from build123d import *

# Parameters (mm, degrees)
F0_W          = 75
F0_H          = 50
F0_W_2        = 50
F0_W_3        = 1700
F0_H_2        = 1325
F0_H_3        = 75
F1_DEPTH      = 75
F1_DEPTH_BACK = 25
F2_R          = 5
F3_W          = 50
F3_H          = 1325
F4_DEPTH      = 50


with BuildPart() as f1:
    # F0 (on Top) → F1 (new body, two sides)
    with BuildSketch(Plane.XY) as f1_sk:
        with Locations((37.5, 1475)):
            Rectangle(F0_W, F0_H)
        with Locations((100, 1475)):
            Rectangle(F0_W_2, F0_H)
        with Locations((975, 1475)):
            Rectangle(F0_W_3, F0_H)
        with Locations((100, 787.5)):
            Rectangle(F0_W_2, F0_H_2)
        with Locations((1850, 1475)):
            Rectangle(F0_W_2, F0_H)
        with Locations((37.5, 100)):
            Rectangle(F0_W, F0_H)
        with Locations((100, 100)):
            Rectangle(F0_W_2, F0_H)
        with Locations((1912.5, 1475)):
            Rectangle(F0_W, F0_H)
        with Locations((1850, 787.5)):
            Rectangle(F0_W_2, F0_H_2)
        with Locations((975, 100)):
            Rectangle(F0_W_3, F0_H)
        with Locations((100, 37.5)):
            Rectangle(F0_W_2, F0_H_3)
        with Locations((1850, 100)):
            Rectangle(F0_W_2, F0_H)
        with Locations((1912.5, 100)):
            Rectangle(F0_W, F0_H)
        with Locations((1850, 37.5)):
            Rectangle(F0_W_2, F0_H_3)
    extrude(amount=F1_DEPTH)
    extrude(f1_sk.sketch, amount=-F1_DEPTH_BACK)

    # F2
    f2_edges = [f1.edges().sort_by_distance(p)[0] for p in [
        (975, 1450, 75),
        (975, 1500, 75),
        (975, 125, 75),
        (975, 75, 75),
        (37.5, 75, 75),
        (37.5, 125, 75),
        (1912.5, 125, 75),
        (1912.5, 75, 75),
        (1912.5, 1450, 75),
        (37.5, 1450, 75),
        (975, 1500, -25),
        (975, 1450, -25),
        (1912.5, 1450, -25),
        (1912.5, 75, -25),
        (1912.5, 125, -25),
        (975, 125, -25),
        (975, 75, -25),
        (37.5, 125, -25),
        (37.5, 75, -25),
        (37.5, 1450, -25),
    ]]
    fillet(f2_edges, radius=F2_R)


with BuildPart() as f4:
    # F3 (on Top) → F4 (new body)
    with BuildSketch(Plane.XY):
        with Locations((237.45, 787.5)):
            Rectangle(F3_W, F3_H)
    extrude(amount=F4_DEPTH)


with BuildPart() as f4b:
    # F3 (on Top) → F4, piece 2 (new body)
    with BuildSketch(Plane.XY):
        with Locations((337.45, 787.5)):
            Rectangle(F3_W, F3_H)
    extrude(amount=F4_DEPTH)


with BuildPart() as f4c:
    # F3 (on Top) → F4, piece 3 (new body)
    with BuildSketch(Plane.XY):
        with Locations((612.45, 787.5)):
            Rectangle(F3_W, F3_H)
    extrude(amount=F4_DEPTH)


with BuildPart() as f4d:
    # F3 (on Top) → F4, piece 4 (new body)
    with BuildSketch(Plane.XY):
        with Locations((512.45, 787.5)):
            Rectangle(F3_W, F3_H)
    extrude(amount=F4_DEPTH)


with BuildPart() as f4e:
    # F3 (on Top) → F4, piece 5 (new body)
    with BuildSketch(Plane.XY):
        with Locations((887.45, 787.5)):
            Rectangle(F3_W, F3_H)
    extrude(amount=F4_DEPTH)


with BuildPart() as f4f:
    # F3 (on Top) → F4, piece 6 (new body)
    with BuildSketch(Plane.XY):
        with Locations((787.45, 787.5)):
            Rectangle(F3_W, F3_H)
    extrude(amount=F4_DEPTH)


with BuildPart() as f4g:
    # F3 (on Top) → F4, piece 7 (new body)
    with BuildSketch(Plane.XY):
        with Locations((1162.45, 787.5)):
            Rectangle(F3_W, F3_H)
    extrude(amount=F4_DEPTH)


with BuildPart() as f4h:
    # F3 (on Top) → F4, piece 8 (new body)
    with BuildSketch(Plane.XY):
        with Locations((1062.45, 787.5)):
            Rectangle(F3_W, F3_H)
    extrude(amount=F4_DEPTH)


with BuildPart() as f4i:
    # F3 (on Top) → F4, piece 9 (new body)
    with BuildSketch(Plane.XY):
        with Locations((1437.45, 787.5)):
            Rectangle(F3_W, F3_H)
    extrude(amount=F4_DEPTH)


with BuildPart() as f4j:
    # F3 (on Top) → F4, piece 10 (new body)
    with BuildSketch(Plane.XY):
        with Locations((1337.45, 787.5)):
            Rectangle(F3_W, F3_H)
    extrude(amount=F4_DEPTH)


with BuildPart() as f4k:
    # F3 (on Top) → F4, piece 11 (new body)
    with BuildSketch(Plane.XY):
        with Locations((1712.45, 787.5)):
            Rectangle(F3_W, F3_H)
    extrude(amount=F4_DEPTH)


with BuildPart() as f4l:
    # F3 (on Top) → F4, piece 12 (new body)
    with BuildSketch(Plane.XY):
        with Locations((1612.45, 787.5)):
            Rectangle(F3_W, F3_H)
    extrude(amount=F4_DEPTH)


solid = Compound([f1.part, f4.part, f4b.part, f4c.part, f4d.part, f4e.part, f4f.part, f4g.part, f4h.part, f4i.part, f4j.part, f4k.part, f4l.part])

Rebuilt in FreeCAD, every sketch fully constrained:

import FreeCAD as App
import Part
import Sketcher
Q = App.Units.Quantity


def edges_at(feature, points):
    """Names of the edges that pass closest to the given points."""
    edges = feature.Shape.Edges
    near = lambda p: min(range(len(edges)), key=lambda i: edges[i].distToShape(Part.Vertex(*p))[0])
    return sorted({f"Edge{near(p) + 1}" for p in points})


def add_polygon(sketch, points):
    """Adds a closed chain of lines whose ends are joined by coincident constraints."""
    first, n = sketch.GeometryCount, len(points)
    for a, b in zip(points, points[1:] + points[:1]):
        sketch.addGeometry(Part.LineSegment(App.Vector(*a, 0), App.Vector(*b, 0)), False)
    for i in range(n):
        sketch.addConstraint(Sketcher.Constraint("Coincident", first + i, 2, first + (i + 1) % n, 1))

doc = App.newDocument("Part")
body = doc.addObject("PartDesign::Body", "Body")

# Sketch on XY plane
sketch1 = body.newObject("Sketcher::SketchObject", "Sketch")
sketch1.AttachmentSupport = (doc.getObject("XY_Plane"), [""])
sketch1.MapMode = "FlatFace"
add_polygon(sketch1, [(125, 75), (1825, 75), (1825, 0), (1875, 0), (1875, 75), (1950, 75), (1950, 125), (1875, 125), (1875, 1450), (1950, 1450), (1950, 1500), (0, 1500), (0, 1450), (75, 1450), (75, 125), (0, 125), (0, 75), (75, 75), (75, 0), (125, 0)])  # lines 0-19
add_polygon(sketch1, [(1825, 125), (125, 125), (125, 1450), (1825, 1450)])  # lines 20-23
sketch1.addConstraint([
    Sketcher.Constraint("Horizontal", 0),
    Sketcher.Constraint("Vertical", 1),
    Sketcher.Constraint("Horizontal", 2),
    Sketcher.Constraint("Vertical", 3),
    Sketcher.Constraint("Horizontal", 4),
    Sketcher.Constraint("Vertical", 5),
    Sketcher.Constraint("Horizontal", 6),
    Sketcher.Constraint("Vertical", 7),
    Sketcher.Constraint("Horizontal", 8),
    Sketcher.Constraint("Vertical", 9),
    Sketcher.Constraint("Horizontal", 10),
    Sketcher.Constraint("Vertical", 11),
    Sketcher.Constraint("Horizontal", 12),
    Sketcher.Constraint("Vertical", 13),
    Sketcher.Constraint("Horizontal", 14),
    Sketcher.Constraint("Vertical", 15),
    Sketcher.Constraint("Horizontal", 16),
    Sketcher.Constraint("Vertical", 17),
    Sketcher.Constraint("Horizontal", 18),
    Sketcher.Constraint("Vertical", 19),
    Sketcher.Constraint("Horizontal", 20),
    Sketcher.Constraint("Vertical", 21),
    Sketcher.Constraint("Horizontal", 22),
    Sketcher.Constraint("Vertical", 23),
    Sketcher.Constraint("PointOnObject", 1, 2, -1),
    Sketcher.Constraint("PointOnObject", 10, 2, -2),
    Sketcher.Constraint("PointOnObject", 14, 2, -2),
    Sketcher.Constraint("PointOnObject", 17, 2, -1),
    Sketcher.Constraint("Horizontal", 0, 2, 3, 2),
    Sketcher.Constraint("Horizontal", 8, 2, 11, 2),
    Sketcher.Constraint("Horizontal", 6, 2, 13, 2),
    Sketcher.Constraint("Horizontal", 4, 2, 15, 2),
    Sketcher.Constraint("Horizontal", 14, 2, 20, 2),
    Sketcher.Constraint("Horizontal", 12, 2, 21, 2),
    Sketcher.Constraint("Vertical", 3, 2, 6, 2),
    Sketcher.Constraint("Vertical", 5, 2, 8, 2),
    Sketcher.Constraint("Vertical", 13, 2, 16, 2),
    Sketcher.Constraint("Vertical", 19, 2, 20, 2),
    Sketcher.Constraint("Vertical", 1, 2, 22, 2),
    Sketcher.Constraint("Equal", 8, 12),
    Sketcher.Constraint("Equal", 2, 18),
    Sketcher.Constraint("Equal", 16, 1),
    Sketcher.Constraint("Equal", 18, 5),
    Sketcher.Constraint("Equal", 5, 9),
    Sketcher.Constraint("DistanceX", 0, 1, 0, 2, Q("1700 mm")),
    Sketcher.Constraint("DistanceX", 2, 1, 2, 2, Q("50 mm")),
    Sketcher.Constraint("DistanceX", 4, 1, 4, 2, Q("75 mm")),
    Sketcher.Constraint("DistanceY", 7, 1, 7, 2, Q("1325 mm")),
])
pad1 = body.newObject("PartDesign::Pad", "Pad")
pad1.Profile = sketch1
pad1.Type = "TwoLengths"
pad1.Length = 75
pad1.Length2 = 25
doc.recompute()

fillet = body.newObject("PartDesign::Fillet", "Fillet")
fillet.Base = (pad1, edges_at(pad1, [
    (975, 1450, 75),
    (975, 1500, 75),
    (975, 125, 75),
    (975, 75, 75),
    (37.5, 75, 75),
    (37.5, 125, 75),
    (1912.5, 125, 75),
    (1912.5, 75, 75),
    (1912.5, 1450, 75),
    (37.5, 1450, 75),
    (975, 1500, -25),
    (975, 1450, -25),
    (1912.5, 1450, -25),
    (1912.5, 75, -25),
    (1912.5, 125, -25),
    (975, 125, -25),
    (975, 75, -25),
    (37.5, 125, -25),
    (37.5, 75, -25),
    (37.5, 1450, -25),
]))
fillet.Radius = 5
body2 = doc.addObject("PartDesign::Body", "Body001")

# Sketch on XY plane
sketch2 = body2.newObject("Sketcher::SketchObject", "Sketch001")
sketch2.AttachmentSupport = (doc.getObject("XY_Plane001"), [""])
sketch2.MapMode = "FlatFace"
add_polygon(sketch2, [(212, 1450), (212, 125), (262, 125), (262, 1450)])  # lines 0-3
sketch2.addConstraint([
    Sketcher.Constraint("Vertical", 0),
    Sketcher.Constraint("Horizontal", 1),
    Sketcher.Constraint("Vertical", 2),
    Sketcher.Constraint("Horizontal", 3),
    Sketcher.Constraint("DistanceX", 1, 1, 1, 2, Q("50 mm")),
    Sketcher.Constraint("DistanceY", 0, 2, 0, 1, Q("1325 mm")),
    Sketcher.Constraint("DistanceY", -1, 1, 0, 2, Q("125 mm")),
    Sketcher.Constraint("DistanceX", -1, 1, 0, 2, Q("212.45 mm")),
])
pad2 = body2.newObject("PartDesign::Pad", "Pad001")
pad2.Profile = sketch2
pad2.Length = 50
body3 = doc.addObject("PartDesign::Body", "Body002")

# Sketch on XY plane
sketch3 = body3.newObject("Sketcher::SketchObject", "Sketch002")
sketch3.AttachmentSupport = (doc.getObject("XY_Plane002"), [""])
sketch3.MapMode = "FlatFace"
add_polygon(sketch3, [(312, 1450), (312, 125), (362, 125), (362, 1450)])  # lines 0-3
sketch3.addConstraint([
    Sketcher.Constraint("Vertical", 0),
    Sketcher.Constraint("Horizontal", 1),
    Sketcher.Constraint("Vertical", 2),
    Sketcher.Constraint("Horizontal", 3),
    Sketcher.Constraint("DistanceX", 1, 1, 1, 2, Q("50 mm")),
    Sketcher.Constraint("DistanceY", 0, 2, 0, 1, Q("1325 mm")),
    Sketcher.Constraint("DistanceY", -1, 1, 0, 2, Q("125 mm")),
    Sketcher.Constraint("DistanceX", -1, 1, 0, 2, Q("312.45 mm")),
])
pad3 = body3.newObject("PartDesign::Pad", "Pad002")
pad3.Profile = sketch3
pad3.Length = 50
body4 = doc.addObject("PartDesign::Body", "Body003")

# Sketch on XY plane
sketch4 = body4.newObject("Sketcher::SketchObject", "Sketch003")
sketch4.AttachmentSupport = (doc.getObject("XY_Plane003"), [""])
sketch4.MapMode = "FlatFace"
add_polygon(sketch4, [(587, 1450), (587, 125), (637, 125), (637, 1450)])  # lines 0-3
sketch4.addConstraint([
    Sketcher.Constraint("Vertical", 0),
    Sketcher.Constraint("Horizontal", 1),
    Sketcher.Constraint("Vertical", 2),
    Sketcher.Constraint("Horizontal", 3),
    Sketcher.Constraint("DistanceX", 1, 1, 1, 2, Q("50 mm")),
    Sketcher.Constraint("DistanceY", 0, 2, 0, 1, Q("1325 mm")),
    Sketcher.Constraint("DistanceY", -1, 1, 0, 2, Q("125 mm")),
    Sketcher.Constraint("DistanceX", -1, 1, 0, 2, Q("587.45 mm")),
])
pad4 = body4.newObject("PartDesign::Pad", "Pad003")
pad4.Profile = sketch4
pad4.Length = 50
body5 = doc.addObject("PartDesign::Body", "Body004")

# Sketch on XY plane
sketch5 = body5.newObject("Sketcher::SketchObject", "Sketch004")
sketch5.AttachmentSupport = (doc.getObject("XY_Plane004"), [""])
sketch5.MapMode = "FlatFace"
add_polygon(sketch5, [(487, 1450), (487, 125), (537, 125), (537, 1450)])  # lines 0-3
sketch5.addConstraint([
    Sketcher.Constraint("Vertical", 0),
    Sketcher.Constraint("Horizontal", 1),
    Sketcher.Constraint("Vertical", 2),
    Sketcher.Constraint("Horizontal", 3),
    Sketcher.Constraint("DistanceX", 1, 1, 1, 2, Q("50 mm")),
    Sketcher.Constraint("DistanceY", 0, 2, 0, 1, Q("1325 mm")),
    Sketcher.Constraint("DistanceY", -1, 1, 0, 2, Q("125 mm")),
    Sketcher.Constraint("DistanceX", -1, 1, 0, 2, Q("487.45 mm")),
])
pad5 = body5.newObject("PartDesign::Pad", "Pad004")
pad5.Profile = sketch5
pad5.Length = 50
body6 = doc.addObject("PartDesign::Body", "Body005")

# Sketch on XY plane
sketch6 = body6.newObject("Sketcher::SketchObject", "Sketch005")
sketch6.AttachmentSupport = (doc.getObject("XY_Plane005"), [""])
sketch6.MapMode = "FlatFace"
add_polygon(sketch6, [(862, 1450), (862, 125), (912, 125), (912, 1450)])  # lines 0-3
sketch6.addConstraint([
    Sketcher.Constraint("Vertical", 0),
    Sketcher.Constraint("Horizontal", 1),
    Sketcher.Constraint("Vertical", 2),
    Sketcher.Constraint("Horizontal", 3),
    Sketcher.Constraint("DistanceX", 1, 1, 1, 2, Q("50 mm")),
    Sketcher.Constraint("DistanceY", 0, 2, 0, 1, Q("1325 mm")),
    Sketcher.Constraint("DistanceY", -1, 1, 0, 2, Q("125 mm")),
    Sketcher.Constraint("DistanceX", -1, 1, 0, 2, Q("862.45 mm")),
])
pad6 = body6.newObject("PartDesign::Pad", "Pad005")
pad6.Profile = sketch6
pad6.Length = 50
body7 = doc.addObject("PartDesign::Body", "Body006")

# Sketch on XY plane
sketch7 = body7.newObject("Sketcher::SketchObject", "Sketch006")
sketch7.AttachmentSupport = (doc.getObject("XY_Plane006"), [""])
sketch7.MapMode = "FlatFace"
add_polygon(sketch7, [(762, 1450), (762, 125), (812, 125), (812, 1450)])  # lines 0-3
sketch7.addConstraint([
    Sketcher.Constraint("Vertical", 0),
    Sketcher.Constraint("Horizontal", 1),
    Sketcher.Constraint("Vertical", 2),
    Sketcher.Constraint("Horizontal", 3),
    Sketcher.Constraint("DistanceX", 1, 1, 1, 2, Q("50 mm")),
    Sketcher.Constraint("DistanceY", 0, 2, 0, 1, Q("1325 mm")),
    Sketcher.Constraint("DistanceY", -1, 1, 0, 2, Q("125 mm")),
    Sketcher.Constraint("DistanceX", -1, 1, 0, 2, Q("762.45 mm")),
])
pad7 = body7.newObject("PartDesign::Pad", "Pad006")
pad7.Profile = sketch7
pad7.Length = 50
body8 = doc.addObject("PartDesign::Body", "Body007")

# Sketch on XY plane
sketch8 = body8.newObject("Sketcher::SketchObject", "Sketch007")
sketch8.AttachmentSupport = (doc.getObject("XY_Plane007"), [""])
sketch8.MapMode = "FlatFace"
add_polygon(sketch8, [(1137, 1450), (1137, 125), (1187, 125), (1187, 1450)])  # lines 0-3
sketch8.addConstraint([
    Sketcher.Constraint("Vertical", 0),
    Sketcher.Constraint("Horizontal", 1),
    Sketcher.Constraint("Vertical", 2),
    Sketcher.Constraint("Horizontal", 3),
    Sketcher.Constraint("DistanceX", 1, 1, 1, 2, Q("50 mm")),
    Sketcher.Constraint("DistanceY", 0, 2, 0, 1, Q("1325 mm")),
    Sketcher.Constraint("DistanceY", -1, 1, 0, 2, Q("125 mm")),
    Sketcher.Constraint("DistanceX", -1, 1, 0, 2, Q("1137.45 mm")),
])
pad8 = body8.newObject("PartDesign::Pad", "Pad007")
pad8.Profile = sketch8
pad8.Length = 50
body9 = doc.addObject("PartDesign::Body", "Body008")

# Sketch on XY plane
sketch9 = body9.newObject("Sketcher::SketchObject", "Sketch008")
sketch9.AttachmentSupport = (doc.getObject("XY_Plane008"), [""])
sketch9.MapMode = "FlatFace"
add_polygon(sketch9, [(1037, 1450), (1037, 125), (1087, 125), (1087, 1450)])  # lines 0-3
sketch9.addConstraint([
    Sketcher.Constraint("Vertical", 0),
    Sketcher.Constraint("Horizontal", 1),
    Sketcher.Constraint("Vertical", 2),
    Sketcher.Constraint("Horizontal", 3),
    Sketcher.Constraint("DistanceX", 1, 1, 1, 2, Q("50 mm")),
    Sketcher.Constraint("DistanceY", 0, 2, 0, 1, Q("1325 mm")),
    Sketcher.Constraint("DistanceY", -1, 1, 0, 2, Q("125 mm")),
    Sketcher.Constraint("DistanceX", -1, 1, 0, 2, Q("1037.45 mm")),
])
pad9 = body9.newObject("PartDesign::Pad", "Pad008")
pad9.Profile = sketch9
pad9.Length = 50
body10 = doc.addObject("PartDesign::Body", "Body009")

# Sketch on XY plane
sketch10 = body10.newObject("Sketcher::SketchObject", "Sketch009")
sketch10.AttachmentSupport = (doc.getObject("XY_Plane009"), [""])
sketch10.MapMode = "FlatFace"
add_polygon(sketch10, [(1412, 1450), (1412, 125), (1462, 125), (1462, 1450)])  # lines 0-3
sketch10.addConstraint([
    Sketcher.Constraint("Vertical", 0),
    Sketcher.Constraint("Horizontal", 1),
    Sketcher.Constraint("Vertical", 2),
    Sketcher.Constraint("Horizontal", 3),
    Sketcher.Constraint("DistanceX", 1, 1, 1, 2, Q("50 mm")),
    Sketcher.Constraint("DistanceY", 0, 2, 0, 1, Q("1325 mm")),
    Sketcher.Constraint("DistanceY", -1, 1, 0, 2, Q("125 mm")),
    Sketcher.Constraint("DistanceX", -1, 1, 0, 2, Q("1412.45 mm")),
])
pad10 = body10.newObject("PartDesign::Pad", "Pad009")
pad10.Profile = sketch10
pad10.Length = 50
body11 = doc.addObject("PartDesign::Body", "Body010")

# Sketch on XY plane
sketch11 = body11.newObject("Sketcher::SketchObject", "Sketch010")
sketch11.AttachmentSupport = (doc.getObject("XY_Plane010"), [""])
sketch11.MapMode = "FlatFace"
add_polygon(sketch11, [(1312, 1450), (1312, 125), (1362, 125), (1362, 1450)])  # lines 0-3
sketch11.addConstraint([
    Sketcher.Constraint("Vertical", 0),
    Sketcher.Constraint("Horizontal", 1),
    Sketcher.Constraint("Vertical", 2),
    Sketcher.Constraint("Horizontal", 3),
    Sketcher.Constraint("DistanceX", 1, 1, 1, 2, Q("50 mm")),
    Sketcher.Constraint("DistanceY", 0, 2, 0, 1, Q("1325 mm")),
    Sketcher.Constraint("DistanceY", -1, 1, 0, 2, Q("125 mm")),
    Sketcher.Constraint("DistanceX", -1, 1, 0, 2, Q("1312.45 mm")),
])
pad11 = body11.newObject("PartDesign::Pad", "Pad010")
pad11.Profile = sketch11
pad11.Length = 50
body12 = doc.addObject("PartDesign::Body", "Body011")

# Sketch on XY plane
sketch12 = body12.newObject("Sketcher::SketchObject", "Sketch011")
sketch12.AttachmentSupport = (doc.getObject("XY_Plane011"), [""])
sketch12.MapMode = "FlatFace"
add_polygon(sketch12, [(1687, 1450), (1687, 125), (1737, 125), (1737, 1450)])  # lines 0-3
sketch12.addConstraint([
    Sketcher.Constraint("Vertical", 0),
    Sketcher.Constraint("Horizontal", 1),
    Sketcher.Constraint("Vertical", 2),
    Sketcher.Constraint("Horizontal", 3),
    Sketcher.Constraint("DistanceX", 1, 1, 1, 2, Q("50 mm")),
    Sketcher.Constraint("DistanceY", 0, 2, 0, 1, Q("1325 mm")),
    Sketcher.Constraint("DistanceY", -1, 1, 0, 2, Q("125 mm")),
    Sketcher.Constraint("DistanceX", -1, 1, 0, 2, Q("1687.45 mm")),
])
pad12 = body12.newObject("PartDesign::Pad", "Pad011")
pad12.Profile = sketch12
pad12.Length = 50
body13 = doc.addObject("PartDesign::Body", "Body012")

# Sketch on XY plane
sketch13 = body13.newObject("Sketcher::SketchObject", "Sketch012")
sketch13.AttachmentSupport = (doc.getObject("XY_Plane012"), [""])
sketch13.MapMode = "FlatFace"
add_polygon(sketch13, [(1587, 1450), (1587, 125), (1637, 125), (1637, 1450)])  # lines 0-3
sketch13.addConstraint([
    Sketcher.Constraint("Vertical", 0),
    Sketcher.Constraint("Horizontal", 1),
    Sketcher.Constraint("Vertical", 2),
    Sketcher.Constraint("Horizontal", 3),
    Sketcher.Constraint("DistanceX", 1, 1, 1, 2, Q("50 mm")),
    Sketcher.Constraint("DistanceY", 0, 2, 0, 1, Q("1325 mm")),
    Sketcher.Constraint("DistanceY", -1, 1, 0, 2, Q("125 mm")),
    Sketcher.Constraint("DistanceX", -1, 1, 0, 2, Q("1587.45 mm")),
])
pad13 = body13.newObject("PartDesign::Pad", "Pad012")
pad13.Profile = sketch13
pad13.Length = 50

doc.recompute()
